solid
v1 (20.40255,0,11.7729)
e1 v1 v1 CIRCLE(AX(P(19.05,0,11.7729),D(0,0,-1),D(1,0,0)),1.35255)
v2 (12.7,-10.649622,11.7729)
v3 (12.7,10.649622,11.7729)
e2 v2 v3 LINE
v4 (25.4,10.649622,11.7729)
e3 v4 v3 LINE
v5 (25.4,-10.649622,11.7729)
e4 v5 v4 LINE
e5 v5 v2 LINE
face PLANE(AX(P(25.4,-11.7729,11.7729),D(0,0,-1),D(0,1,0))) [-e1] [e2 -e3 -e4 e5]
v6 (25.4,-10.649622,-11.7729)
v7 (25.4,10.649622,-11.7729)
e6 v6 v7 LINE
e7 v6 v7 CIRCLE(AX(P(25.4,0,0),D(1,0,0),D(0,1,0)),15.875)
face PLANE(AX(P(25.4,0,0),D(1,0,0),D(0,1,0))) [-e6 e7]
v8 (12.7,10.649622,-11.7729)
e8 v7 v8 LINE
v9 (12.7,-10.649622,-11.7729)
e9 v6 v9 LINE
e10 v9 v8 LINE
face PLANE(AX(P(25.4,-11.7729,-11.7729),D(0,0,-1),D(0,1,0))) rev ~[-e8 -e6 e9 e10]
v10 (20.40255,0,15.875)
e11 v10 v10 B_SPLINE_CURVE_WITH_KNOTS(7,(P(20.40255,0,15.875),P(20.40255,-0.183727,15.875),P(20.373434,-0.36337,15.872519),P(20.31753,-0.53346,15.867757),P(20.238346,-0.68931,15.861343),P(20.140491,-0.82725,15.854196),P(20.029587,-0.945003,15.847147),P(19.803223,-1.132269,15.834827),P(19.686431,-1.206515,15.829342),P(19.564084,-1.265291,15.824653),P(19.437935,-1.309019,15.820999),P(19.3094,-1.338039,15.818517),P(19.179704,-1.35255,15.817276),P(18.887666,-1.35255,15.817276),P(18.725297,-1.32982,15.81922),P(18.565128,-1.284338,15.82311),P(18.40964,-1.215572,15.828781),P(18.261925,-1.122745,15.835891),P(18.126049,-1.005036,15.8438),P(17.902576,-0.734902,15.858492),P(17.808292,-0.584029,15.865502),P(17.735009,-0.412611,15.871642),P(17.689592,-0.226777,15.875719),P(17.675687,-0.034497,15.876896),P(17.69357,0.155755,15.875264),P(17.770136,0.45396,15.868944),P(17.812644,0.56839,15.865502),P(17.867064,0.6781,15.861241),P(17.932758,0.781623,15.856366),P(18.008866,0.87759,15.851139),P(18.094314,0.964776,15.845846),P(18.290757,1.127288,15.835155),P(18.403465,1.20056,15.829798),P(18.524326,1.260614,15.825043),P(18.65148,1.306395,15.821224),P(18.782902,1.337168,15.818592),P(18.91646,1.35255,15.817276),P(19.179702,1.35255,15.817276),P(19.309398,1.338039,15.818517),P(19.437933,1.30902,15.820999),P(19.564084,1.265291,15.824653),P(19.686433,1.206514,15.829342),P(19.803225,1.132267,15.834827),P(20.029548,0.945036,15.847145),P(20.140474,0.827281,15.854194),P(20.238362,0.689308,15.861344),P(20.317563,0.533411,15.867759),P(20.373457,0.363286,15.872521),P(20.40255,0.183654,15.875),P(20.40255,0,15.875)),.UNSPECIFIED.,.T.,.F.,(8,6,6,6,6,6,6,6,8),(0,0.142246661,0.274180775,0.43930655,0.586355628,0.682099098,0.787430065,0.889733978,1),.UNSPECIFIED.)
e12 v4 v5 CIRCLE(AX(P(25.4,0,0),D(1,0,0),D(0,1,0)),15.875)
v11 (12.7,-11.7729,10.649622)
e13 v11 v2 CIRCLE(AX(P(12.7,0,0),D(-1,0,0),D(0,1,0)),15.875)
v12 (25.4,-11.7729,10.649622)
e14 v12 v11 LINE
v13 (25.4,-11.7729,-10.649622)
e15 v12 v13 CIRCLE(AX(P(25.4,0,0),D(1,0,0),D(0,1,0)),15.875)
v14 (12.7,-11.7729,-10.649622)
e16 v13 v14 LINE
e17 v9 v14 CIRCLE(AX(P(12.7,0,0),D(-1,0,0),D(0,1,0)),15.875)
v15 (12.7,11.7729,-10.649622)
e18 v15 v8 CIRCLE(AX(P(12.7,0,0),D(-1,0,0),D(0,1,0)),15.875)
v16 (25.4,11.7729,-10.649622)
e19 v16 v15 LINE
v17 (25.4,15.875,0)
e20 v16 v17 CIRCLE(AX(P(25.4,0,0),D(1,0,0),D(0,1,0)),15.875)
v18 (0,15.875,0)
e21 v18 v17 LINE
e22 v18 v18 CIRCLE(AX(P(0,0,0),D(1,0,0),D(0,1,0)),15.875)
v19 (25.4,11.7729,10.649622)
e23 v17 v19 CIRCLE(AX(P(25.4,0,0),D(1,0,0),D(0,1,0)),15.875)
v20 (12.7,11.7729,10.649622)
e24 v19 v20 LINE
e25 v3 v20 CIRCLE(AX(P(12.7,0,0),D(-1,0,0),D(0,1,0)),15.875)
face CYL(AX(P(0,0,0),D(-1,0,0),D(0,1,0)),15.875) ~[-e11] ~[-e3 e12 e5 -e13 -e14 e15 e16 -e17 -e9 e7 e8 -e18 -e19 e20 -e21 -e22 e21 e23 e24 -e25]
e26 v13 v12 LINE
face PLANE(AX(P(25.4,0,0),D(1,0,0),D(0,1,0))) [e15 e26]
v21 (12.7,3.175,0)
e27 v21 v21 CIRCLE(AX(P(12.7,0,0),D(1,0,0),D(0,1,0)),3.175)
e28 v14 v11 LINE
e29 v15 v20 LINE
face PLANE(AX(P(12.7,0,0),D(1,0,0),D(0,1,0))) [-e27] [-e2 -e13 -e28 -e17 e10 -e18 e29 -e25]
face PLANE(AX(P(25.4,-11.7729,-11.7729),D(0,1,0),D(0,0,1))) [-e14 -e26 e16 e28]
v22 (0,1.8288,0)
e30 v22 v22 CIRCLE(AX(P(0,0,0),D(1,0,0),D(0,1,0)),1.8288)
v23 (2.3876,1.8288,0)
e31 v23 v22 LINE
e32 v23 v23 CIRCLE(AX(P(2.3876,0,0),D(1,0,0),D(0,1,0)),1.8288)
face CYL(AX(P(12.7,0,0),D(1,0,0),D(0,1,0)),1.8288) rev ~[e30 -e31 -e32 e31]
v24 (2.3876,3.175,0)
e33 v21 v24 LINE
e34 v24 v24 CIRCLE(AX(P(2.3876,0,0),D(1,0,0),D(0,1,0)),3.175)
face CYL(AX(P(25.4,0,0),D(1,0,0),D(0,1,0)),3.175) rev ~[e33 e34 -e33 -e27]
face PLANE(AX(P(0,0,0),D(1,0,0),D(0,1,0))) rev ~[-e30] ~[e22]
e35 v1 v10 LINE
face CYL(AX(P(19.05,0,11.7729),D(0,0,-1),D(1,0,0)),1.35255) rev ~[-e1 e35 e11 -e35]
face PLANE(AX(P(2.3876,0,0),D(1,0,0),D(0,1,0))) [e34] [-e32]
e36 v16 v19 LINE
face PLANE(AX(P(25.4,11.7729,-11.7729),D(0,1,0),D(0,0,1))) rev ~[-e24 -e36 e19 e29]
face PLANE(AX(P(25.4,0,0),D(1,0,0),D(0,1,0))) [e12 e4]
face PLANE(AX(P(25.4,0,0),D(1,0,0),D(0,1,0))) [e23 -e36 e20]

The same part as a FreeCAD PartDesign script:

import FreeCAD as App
import Part
import Sketcher

V = App.Vector
Q = App.Units.Quantity


def add_polygon(sketch, points):
    """Adds a closed chain of lines whose ends are joined by coincident constraints."""
    first, n = sketch.GeometryCount, len(points)
    for a, b in zip(points, points[1:] + points[:1]):
        sketch.addGeometry(Part.LineSegment(App.Vector(*a, 0), App.Vector(*b, 0)), False)
    for i in range(n):
        sketch.addConstraint(Sketcher.Constraint("Coincident", first + i, 2, first + (i + 1) % n, 1))

doc = App.newDocument("Part")
body = doc.addObject("PartDesign::Body", "Body")

# Sketch on YZ plane
sketch1 = body.newObject("Sketcher::SketchObject", "Sketch")
sketch1.AttachmentSupport = (doc.getObject("YZ_Plane"), [""])
sketch1.MapMode = "FlatFace"
sketch1.addGeometry(Part.Circle(V(0, 0, 0), V(0, 0, 1), 15.875), False)
sketch1.addConstraint(Sketcher.Constraint("Coincident", 0, 3, -1, 1))
sketch1.addConstraint(Sketcher.Constraint("Diameter", 0, Q("1.25 in")))
pad1 = body.newObject("PartDesign::Pad", "Pad")
pad1.Profile = sketch1
pad1.Length = Q("1 in")

# Sketch on YZ plane
sketch2 = body.newObject("Sketcher::SketchObject", "Sketch001")
sketch2.AttachmentSupport = (doc.getObject("YZ_Plane"), [""])
sketch2.MapMode = "FlatFace"
sketch2.AttachmentOffset = App.Placement(V(0, 0, 1 * 25.4), App.Rotation())
add_polygon(sketch2, [(-11.7729, 11.7729), (-11.7729, -11.7729), (11.7729, -11.7729), (11.7729, 11.7729)])  # lines 0-3
sketch2.addConstraint(Sketcher.Constraint("Vertical", 0))
sketch2.addConstraint(Sketcher.Constraint("Horizontal", 1))
sketch2.addConstraint(Sketcher.Constraint("Vertical", 2))
sketch2.addConstraint(Sketcher.Constraint("Horizontal", 3))
sketch2.addConstraint(Sketcher.Constraint("Symmetric", 0, 2, 2, 2, -1, 1))
sketch2.addConstraint(Sketcher.Constraint("Equal", 3, 0))
sketch2.addConstraint(Sketcher.Constraint("DistanceX", 1, 1, 1, 2, Q("0.927 in")))
pocket1 = body.newObject("PartDesign::Pocket", "Pocket")
pocket1.Profile = sketch2
pocket1.Length = Q("0.5 in")

# Sketch on YZ plane
sketch3 = body.newObject("Sketcher::SketchObject", "Sketch002")
sketch3.AttachmentSupport = (doc.getObject("YZ_Plane"), [""])
sketch3.MapMode = "FlatFace"
sketch3.AttachmentOffset = App.Placement(V(0, 0, 1 * 25.4), App.Rotation())
sketch3.addGeometry(Part.Circle(V(0, 0, 0), V(0, 0, 1), 3.175), False)
sketch3.addConstraint(Sketcher.Constraint("Coincident", 0, 3, -1, 1))
sketch3.addConstraint(Sketcher.Constraint("Diameter", 0, Q("0.25 in")))
pocket2 = body.newObject("PartDesign::Pocket", "Pocket001")
pocket2.Profile = sketch3
pocket2.Length = Q("0.906 in")

# Sketch on YZ plane
sketch4 = body.newObject("Sketcher::SketchObject", "Sketch003")
sketch4.AttachmentSupport = (doc.getObject("YZ_Plane"), [""])
sketch4.MapMode = "FlatFace"
sketch4.AttachmentOffset = App.Placement(V(0, 0, 0.5 * 25.4), App.Rotation())
sketch4.addGeometry(Part.Circle(V(0, 0, 0), V(0, 0, 1), 1.8288), False)
sketch4.addConstraint(Sketcher.Constraint("Coincident", 0, 3, -1, 1))
sketch4.addConstraint(Sketcher.Constraint("Diameter", 0, Q("0.144 in")))
pocket3 = body.newObject("PartDesign::Pocket", "Pocket002")
pocket3.Profile = sketch4
pocket3.Type = "ThroughAll"

# Sketch on XY plane
sketch5 = body.newObject("Sketcher::SketchObject", "Sketch004")
sketch5.AttachmentSupport = (doc.getObject("XY_Plane"), [""])
sketch5.MapMode = "FlatFace"
sketch5.AttachmentOffset = App.Placement(V(0, 0, 0.4635 * 25.4), App.Rotation())
sketch5.addGeometry(Part.Circle(V(19.05, 0, 0), V(0, 0, 1), 1.35255), False)
sketch5.addConstraint(Sketcher.Constraint("PointOnObject", 0, 3, -1))
sketch5.addConstraint(Sketcher.Constraint("Diameter", 0, Q("0.1065 in")))
sketch5.addConstraint(Sketcher.Constraint("DistanceX", -1, 1, 0, 3, Q("0.75 in")))
pocket4 = body.newObject("PartDesign::Pocket", "Pocket003")
pocket4.Profile = sketch5
pocket4.Type = "ThroughAll"
pocket4.Reversed = True

doc.recompute()
